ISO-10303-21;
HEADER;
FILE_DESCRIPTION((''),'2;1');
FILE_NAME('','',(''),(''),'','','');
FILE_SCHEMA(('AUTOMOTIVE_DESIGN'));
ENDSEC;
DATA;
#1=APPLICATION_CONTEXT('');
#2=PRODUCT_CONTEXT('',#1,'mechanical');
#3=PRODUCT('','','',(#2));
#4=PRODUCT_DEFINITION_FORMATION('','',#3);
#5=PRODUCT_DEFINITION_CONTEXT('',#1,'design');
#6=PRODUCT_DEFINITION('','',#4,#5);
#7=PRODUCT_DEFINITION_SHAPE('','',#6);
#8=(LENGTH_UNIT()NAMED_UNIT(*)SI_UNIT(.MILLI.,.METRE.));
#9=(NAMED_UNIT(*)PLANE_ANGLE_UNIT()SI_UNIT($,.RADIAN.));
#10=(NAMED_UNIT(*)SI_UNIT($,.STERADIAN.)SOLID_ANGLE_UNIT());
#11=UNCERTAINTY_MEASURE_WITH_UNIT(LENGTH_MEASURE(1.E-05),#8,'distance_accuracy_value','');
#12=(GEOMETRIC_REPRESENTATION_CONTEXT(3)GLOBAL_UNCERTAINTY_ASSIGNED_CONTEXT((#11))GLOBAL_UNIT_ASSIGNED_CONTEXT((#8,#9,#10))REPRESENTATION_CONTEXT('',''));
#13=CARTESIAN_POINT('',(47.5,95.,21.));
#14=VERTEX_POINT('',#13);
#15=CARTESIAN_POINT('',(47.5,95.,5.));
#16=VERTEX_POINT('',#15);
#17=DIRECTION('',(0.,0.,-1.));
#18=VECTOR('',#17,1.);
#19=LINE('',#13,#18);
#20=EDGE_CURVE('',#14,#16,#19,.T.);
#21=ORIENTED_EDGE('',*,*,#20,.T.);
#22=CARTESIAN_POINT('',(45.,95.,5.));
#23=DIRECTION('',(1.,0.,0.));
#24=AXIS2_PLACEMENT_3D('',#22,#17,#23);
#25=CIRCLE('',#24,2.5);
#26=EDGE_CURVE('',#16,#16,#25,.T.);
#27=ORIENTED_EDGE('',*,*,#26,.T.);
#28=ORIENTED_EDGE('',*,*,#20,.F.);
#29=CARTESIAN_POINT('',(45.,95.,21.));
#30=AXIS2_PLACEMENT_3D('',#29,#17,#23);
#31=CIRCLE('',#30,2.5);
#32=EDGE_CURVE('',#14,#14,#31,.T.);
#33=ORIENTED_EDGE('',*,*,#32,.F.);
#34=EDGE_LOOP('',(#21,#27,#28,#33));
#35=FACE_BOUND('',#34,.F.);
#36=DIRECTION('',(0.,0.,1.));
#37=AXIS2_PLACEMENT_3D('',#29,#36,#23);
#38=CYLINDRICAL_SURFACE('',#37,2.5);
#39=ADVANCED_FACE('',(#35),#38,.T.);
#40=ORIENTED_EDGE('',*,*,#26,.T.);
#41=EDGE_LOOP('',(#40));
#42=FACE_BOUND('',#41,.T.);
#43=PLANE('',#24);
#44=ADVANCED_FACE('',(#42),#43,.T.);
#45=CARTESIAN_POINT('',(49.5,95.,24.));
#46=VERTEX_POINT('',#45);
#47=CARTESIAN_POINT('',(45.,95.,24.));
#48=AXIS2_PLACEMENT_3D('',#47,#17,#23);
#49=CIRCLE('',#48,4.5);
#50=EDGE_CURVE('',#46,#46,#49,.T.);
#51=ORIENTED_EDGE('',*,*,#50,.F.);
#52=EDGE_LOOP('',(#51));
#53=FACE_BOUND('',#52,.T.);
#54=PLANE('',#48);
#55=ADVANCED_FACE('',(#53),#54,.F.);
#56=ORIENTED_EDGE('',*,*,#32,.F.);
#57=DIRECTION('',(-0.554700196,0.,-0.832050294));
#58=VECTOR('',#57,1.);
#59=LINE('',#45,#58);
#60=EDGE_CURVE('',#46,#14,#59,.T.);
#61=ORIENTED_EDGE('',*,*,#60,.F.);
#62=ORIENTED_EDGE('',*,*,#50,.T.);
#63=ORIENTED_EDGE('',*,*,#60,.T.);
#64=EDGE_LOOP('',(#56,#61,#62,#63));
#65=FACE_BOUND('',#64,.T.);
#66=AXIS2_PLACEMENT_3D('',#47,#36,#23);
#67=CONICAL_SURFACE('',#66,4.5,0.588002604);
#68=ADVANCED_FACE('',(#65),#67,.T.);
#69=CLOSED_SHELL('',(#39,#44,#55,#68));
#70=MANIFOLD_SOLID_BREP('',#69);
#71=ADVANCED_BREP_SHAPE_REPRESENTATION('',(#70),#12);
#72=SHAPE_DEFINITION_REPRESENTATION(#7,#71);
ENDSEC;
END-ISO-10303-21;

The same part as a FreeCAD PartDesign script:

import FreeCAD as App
import Part
import Sketcher
from FreeCAD import Vector

doc = App.newDocument("Part")
body = doc.addObject("PartDesign::Body", "Body")

sketch1 = body.newObject("Sketcher::SketchObject", "Sketch")
sketch1.AttachmentSupport = (doc.getObject("XZ_Plane"), [""])
sketch1.MapMode = "FlatFace"
sketch1.addGeometry([
    Part.LineSegment(Vector(0, -3, 0), Vector(4.5, -3, 0)),
    Part.LineSegment(Vector(4.5, -3, 0), Vector(2.5, 0, 0)),
    Part.LineSegment(Vector(2.5, 0, 0), Vector(0, 0, 0)),
    Part.LineSegment(Vector(0, 0, 0), Vector(0, -3, 0)),
], False)
sketch1.addConstraint([
    Sketcher.Constraint("Coincident", 0, 2, 1, 1),
    Sketcher.Constraint("Coincident", 1, 2, 2, 1),
    Sketcher.Constraint("Coincident", 2, 2, 3, 1),
    Sketcher.Constraint("Coincident", 3, 2, 0, 1),
    Sketcher.Constraint("Horizontal", 0),
    Sketcher.Constraint("Horizontal", 2),
    Sketcher.Constraint("Vertical", 3),
    Sketcher.Constraint("Coincident", 2, 2, -1, 1),
    Sketcher.Constraint("DistanceY", 3, 2, 3, 1, 3.0),
    Sketcher.Constraint("DistanceX", 0, 1, 0, 2, 4.5),
    Sketcher.Constraint("DistanceX", 2, 2, 2, 1, 2.5),
])
revolution = body.newObject("PartDesign::Revolution", "Revolution")
revolution.Profile = sketch1
revolution.ReferenceAxis = (sketch1, ["V_Axis"])
revolution.Angle = 360
body2 = doc.addObject("PartDesign::Body", "Body001")

sketch2 = body2.newObject("Sketcher::SketchObject", "Sketch001")
sketch2.AttachmentSupport = (doc.getObject("XY_Plane001"), [""])
sketch2.MapMode = "FlatFace"
sketch2.addGeometry(Part.Circle(Vector(0, 0, 0), Vector(0, 0, 1), 2.5), False)
sketch2.addConstraint([
    Sketcher.Constraint("Coincident", 0, 3, -1, 1),
    Sketcher.Constraint("Diameter", 0, 5.0),
])
pad1 = body2.newObject("PartDesign::Pad", "Pad")
pad1.Profile = sketch2
pad1.Length = 16
doc.recompute()

boolean = body2.newObject("PartDesign::Boolean", "Boolean")
boolean.Type = "Fuse"
boolean.addObjects([body])
body3 = doc.addObject("PartDesign::Body", "Body002")
doc.recompute()

body2.Placement = App.Placement(Vector(45, 15, 21), App.Rotation(Vector(0, 1, 0), 180))
boolean2 = body3.newObject("PartDesign::Boolean", "Boolean001")
boolean2.Type = "Fuse"
boolean2.addObjects([body2])
body4 = doc.addObject("PartDesign::Body", "Body003")
doc.recompute()

body3.Placement = App.Placement(Vector(90, 110, 0), App.Rotation(Vector(0, 0, 1), 180))
boolean3 = body4.newObject("PartDesign::Boolean", "Boolean002")
boolean3.Type = "Fuse"
boolean3.addObjects([body3])

doc.recompute()
